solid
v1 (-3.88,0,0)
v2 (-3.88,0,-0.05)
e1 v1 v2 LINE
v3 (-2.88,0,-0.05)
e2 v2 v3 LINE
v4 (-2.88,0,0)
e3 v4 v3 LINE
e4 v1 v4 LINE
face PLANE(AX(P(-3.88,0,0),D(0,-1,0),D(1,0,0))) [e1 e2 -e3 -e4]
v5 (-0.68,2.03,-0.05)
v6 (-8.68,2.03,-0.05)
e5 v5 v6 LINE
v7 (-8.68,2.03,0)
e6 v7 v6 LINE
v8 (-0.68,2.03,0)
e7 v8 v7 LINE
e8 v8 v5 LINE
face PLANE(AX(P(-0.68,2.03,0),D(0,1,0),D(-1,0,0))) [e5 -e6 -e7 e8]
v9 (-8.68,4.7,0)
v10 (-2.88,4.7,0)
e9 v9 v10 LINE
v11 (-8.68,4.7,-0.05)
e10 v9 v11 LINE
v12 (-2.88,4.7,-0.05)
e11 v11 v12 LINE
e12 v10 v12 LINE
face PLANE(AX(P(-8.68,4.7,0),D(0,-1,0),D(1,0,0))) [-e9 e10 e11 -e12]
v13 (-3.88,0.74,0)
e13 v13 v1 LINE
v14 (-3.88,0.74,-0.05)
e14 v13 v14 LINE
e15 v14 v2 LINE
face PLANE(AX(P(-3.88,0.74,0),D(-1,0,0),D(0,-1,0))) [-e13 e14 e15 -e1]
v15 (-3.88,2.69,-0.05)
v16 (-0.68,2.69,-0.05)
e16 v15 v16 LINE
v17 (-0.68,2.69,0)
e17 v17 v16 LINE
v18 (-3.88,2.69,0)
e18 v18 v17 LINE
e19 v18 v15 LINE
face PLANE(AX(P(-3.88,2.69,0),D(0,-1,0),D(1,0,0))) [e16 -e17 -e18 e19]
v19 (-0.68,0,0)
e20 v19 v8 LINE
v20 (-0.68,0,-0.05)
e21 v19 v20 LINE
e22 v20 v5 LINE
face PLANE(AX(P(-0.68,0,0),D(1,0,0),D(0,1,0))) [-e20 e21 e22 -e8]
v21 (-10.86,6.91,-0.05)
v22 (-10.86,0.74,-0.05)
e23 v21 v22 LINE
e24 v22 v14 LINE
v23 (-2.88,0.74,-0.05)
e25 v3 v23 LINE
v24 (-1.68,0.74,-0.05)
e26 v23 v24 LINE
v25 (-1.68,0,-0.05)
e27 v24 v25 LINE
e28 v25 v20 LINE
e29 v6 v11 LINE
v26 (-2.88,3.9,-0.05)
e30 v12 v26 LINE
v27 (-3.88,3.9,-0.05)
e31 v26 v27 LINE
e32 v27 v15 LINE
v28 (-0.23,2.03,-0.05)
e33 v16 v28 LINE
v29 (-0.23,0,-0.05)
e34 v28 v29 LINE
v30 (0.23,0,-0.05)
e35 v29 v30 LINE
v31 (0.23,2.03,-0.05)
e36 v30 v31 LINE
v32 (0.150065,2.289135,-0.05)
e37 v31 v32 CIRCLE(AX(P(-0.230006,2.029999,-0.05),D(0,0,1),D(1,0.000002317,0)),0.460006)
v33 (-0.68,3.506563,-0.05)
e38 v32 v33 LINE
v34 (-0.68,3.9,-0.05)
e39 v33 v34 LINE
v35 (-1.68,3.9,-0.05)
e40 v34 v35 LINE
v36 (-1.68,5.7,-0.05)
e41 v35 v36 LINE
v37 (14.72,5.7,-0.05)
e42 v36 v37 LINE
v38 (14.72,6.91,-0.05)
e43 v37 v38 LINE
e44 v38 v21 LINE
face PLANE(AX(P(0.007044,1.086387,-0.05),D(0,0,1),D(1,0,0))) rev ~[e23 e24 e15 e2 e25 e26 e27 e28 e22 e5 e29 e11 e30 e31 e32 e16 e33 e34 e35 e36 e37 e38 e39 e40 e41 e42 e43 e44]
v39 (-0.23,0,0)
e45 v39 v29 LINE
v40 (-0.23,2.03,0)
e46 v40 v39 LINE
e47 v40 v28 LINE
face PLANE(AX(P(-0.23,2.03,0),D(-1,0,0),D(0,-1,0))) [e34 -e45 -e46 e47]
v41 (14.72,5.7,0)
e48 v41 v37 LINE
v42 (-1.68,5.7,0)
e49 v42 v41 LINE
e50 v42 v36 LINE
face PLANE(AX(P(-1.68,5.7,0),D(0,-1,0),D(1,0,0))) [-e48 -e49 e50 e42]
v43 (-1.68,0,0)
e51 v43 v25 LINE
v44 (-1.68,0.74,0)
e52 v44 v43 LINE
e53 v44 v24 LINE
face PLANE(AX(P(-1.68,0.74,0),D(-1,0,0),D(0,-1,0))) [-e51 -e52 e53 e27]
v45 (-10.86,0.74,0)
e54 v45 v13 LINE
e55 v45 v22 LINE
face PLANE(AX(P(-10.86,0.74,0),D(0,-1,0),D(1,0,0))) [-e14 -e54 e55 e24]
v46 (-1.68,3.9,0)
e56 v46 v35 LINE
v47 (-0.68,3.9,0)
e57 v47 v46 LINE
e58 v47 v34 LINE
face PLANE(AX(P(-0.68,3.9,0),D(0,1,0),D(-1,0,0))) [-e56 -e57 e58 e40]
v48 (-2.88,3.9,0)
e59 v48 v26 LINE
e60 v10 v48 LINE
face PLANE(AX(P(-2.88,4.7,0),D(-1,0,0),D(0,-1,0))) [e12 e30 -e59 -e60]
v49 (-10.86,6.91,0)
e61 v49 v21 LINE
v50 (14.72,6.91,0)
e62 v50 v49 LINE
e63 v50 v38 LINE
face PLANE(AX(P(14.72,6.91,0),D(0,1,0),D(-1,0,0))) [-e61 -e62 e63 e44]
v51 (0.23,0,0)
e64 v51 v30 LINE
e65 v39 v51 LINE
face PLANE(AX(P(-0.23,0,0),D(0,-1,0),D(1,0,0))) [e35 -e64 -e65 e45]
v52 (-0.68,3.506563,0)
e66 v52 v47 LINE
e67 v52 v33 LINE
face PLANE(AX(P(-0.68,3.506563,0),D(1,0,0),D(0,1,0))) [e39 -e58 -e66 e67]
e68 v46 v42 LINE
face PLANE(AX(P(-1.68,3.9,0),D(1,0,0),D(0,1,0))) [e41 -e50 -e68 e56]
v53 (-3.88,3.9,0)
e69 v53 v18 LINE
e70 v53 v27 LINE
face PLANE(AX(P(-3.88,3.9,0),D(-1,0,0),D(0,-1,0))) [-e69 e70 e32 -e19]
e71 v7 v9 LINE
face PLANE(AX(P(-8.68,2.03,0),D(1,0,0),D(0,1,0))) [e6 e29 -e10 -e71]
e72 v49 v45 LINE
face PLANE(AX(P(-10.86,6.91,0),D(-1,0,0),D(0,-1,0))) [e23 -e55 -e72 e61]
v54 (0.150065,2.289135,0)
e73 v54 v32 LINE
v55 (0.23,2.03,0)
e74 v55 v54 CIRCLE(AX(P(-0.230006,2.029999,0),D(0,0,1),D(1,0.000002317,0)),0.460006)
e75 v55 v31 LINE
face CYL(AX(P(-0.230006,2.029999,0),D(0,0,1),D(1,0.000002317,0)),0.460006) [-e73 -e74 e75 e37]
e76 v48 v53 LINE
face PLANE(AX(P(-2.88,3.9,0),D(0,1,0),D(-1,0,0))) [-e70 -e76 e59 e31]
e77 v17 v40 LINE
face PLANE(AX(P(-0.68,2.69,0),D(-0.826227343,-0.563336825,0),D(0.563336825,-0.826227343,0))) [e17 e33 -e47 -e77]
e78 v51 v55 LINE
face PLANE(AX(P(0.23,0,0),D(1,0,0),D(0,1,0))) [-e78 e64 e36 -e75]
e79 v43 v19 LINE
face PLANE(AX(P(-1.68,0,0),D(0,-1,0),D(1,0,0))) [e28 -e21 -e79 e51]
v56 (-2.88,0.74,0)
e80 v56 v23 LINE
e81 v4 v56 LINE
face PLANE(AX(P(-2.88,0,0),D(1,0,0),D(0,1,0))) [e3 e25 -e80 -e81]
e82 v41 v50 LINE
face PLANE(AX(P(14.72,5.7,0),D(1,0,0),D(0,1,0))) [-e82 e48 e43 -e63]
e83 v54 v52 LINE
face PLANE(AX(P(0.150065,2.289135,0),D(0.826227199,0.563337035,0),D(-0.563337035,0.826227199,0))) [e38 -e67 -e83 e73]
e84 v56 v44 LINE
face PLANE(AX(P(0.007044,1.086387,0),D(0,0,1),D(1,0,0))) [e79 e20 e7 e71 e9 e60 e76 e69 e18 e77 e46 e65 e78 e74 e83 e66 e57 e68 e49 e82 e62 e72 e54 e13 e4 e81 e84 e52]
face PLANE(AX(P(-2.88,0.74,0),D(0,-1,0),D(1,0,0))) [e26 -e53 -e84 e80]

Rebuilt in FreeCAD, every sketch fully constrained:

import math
import FreeCAD as App
import Part
import Sketcher

doc = App.newDocument("Part")
params = doc.addObject("Spreadsheet::Sheet", "Params")
for row, (alias, value) in enumerate([
    ("sketch1_width", "1 mm"),
    ("sketch1_width2", "8 mm"),
    ("sketch1_width3", "16.4 mm"),
    ("sketch1_width4", "1.2 mm"),
    ("sketch1_height", "1.8 mm"),
    ("pad1_length", "0.05 mm"),
], start=1):
    params.set(f"A{row}", alias)
    params.set(f"B{row}", "=" + value)
    params.setAlias(f"B{row}", alias)

body = doc.addObject("PartDesign::Body", "Body")

sketch1 = body.newObject("Sketcher::SketchObject", "Sketch")
sketch1.AttachmentSupport = (doc.getObject("XY_Plane"), [""])
sketch1.MapMode = "FlatFace"
sketch1.addGeometry([
    Part.LineSegment(App.Vector(-0.23, 2.03, 0), App.Vector(-0.23, 0, 0)),
    Part.LineSegment(App.Vector(-0.23, 0, 0), App.Vector(0.23, 0, 0)),
    Part.LineSegment(App.Vector(0.23, 0, 0), App.Vector(0.23, 2.03, 0)),
    Part.ArcOfCircle(Part.Circle(App.Vector(-0.23, 2.03, 0), App.Vector(0, 0, 1), 0.46), math.radians(0), math.radians(34)),
    Part.LineSegment(App.Vector(0.15, 2.29, 0), App.Vector(-0.68, 3.51, 0)),
    Part.LineSegment(App.Vector(-0.68, 3.51, 0), App.Vector(-0.68, 3.9, 0)),
    Part.LineSegment(App.Vector(-0.68, 3.9, 0), App.Vector(-1.68, 3.9, 0)),
    Part.LineSegment(App.Vector(-1.68, 3.9, 0), App.Vector(-1.68, 5.7, 0)),
    Part.LineSegment(App.Vector(-1.68, 5.7, 0), App.Vector(14.72, 5.7, 0)),
    Part.LineSegment(App.Vector(14.72, 5.7, 0), App.Vector(14.72, 6.91, 0)),
    Part.LineSegment(App.Vector(14.72, 6.91, 0), App.Vector(-10.86, 6.91, 0)),
    Part.LineSegment(App.Vector(-10.86, 6.91, 0), App.Vector(-10.86, 0.74, 0)),
    Part.LineSegment(App.Vector(-10.86, 0.74, 0), App.Vector(-3.88, 0.74, 0)),
    Part.LineSegment(App.Vector(-3.88, 0.74, 0), App.Vector(-3.88, 0, 0)),
    Part.LineSegment(App.Vector(-3.88, 0, 0), App.Vector(-2.88, 0, 0)),
    Part.LineSegment(App.Vector(-2.88, 0, 0), App.Vector(-2.88, 0.74, 0)),
    Part.LineSegment(App.Vector(-2.88, 0.74, 0), App.Vector(-1.68, 0.74, 0)),
    Part.LineSegment(App.Vector(-1.68, 0.74, 0), App.Vector(-1.68, 0, 0)),
    Part.LineSegment(App.Vector(-1.68, 0, 0), App.Vector(-0.68, 0, 0)),
    Part.LineSegment(App.Vector(-0.68, 0, 0), App.Vector(-0.68, 2.03, 0)),
    Part.LineSegment(App.Vector(-0.68, 2.03, 0), App.Vector(-8.68, 2.03, 0)),
    Part.LineSegment(App.Vector(-8.68, 2.03, 0), App.Vector(-8.68, 4.7, 0)),
    Part.LineSegment(App.Vector(-8.68, 4.7, 0), App.Vector(-2.88, 4.7, 0)),
    Part.LineSegment(App.Vector(-2.88, 4.7, 0), App.Vector(-2.88, 3.9, 0)),
    Part.LineSegment(App.Vector(-2.88, 3.9, 0), App.Vector(-3.88, 3.9, 0)),
    Part.LineSegment(App.Vector(-3.88, 3.9, 0), App.Vector(-3.88, 2.69, 0)),
    Part.LineSegment(App.Vector(-3.88, 2.69, 0), App.Vector(-0.68, 2.69, 0)),
    Part.LineSegment(App.Vector(-0.68, 2.69, 0), App.Vector(-0.23, 2.03, 0)),
], False)
sketch1.addConstraint([
    Sketcher.Constraint("Coincident", 0, 2, 1, 1),
    Sketcher.Constraint("Coincident", 1, 2, 2, 1),
    Sketcher.Constraint("Coincident", 2, 2, 3, 1),
    Sketcher.Constraint("Coincident", 3, 2, 4, 1),
    Sketcher.Constraint("Coincident", 4, 2, 5, 1),
    Sketcher.Constraint("Coincident", 5, 2, 6, 1),
    Sketcher.Constraint("Coincident", 6, 2, 7, 1),
    Sketcher.Constraint("Coincident", 7, 2, 8, 1),
    Sketcher.Constraint("Coincident", 8, 2, 9, 1),
    Sketcher.Constraint("Coincident", 9, 2, 10, 1),
    Sketcher.Constraint("Coincident", 10, 2, 11, 1),
    Sketcher.Constraint("Coincident", 11, 2, 12, 1),
    Sketcher.Constraint("Coincident", 12, 2, 13, 1),
    Sketcher.Constraint("Coincident", 13, 2, 14, 1),
    Sketcher.Constraint("Coincident", 14, 2, 15, 1),
    Sketcher.Constraint("Coincident", 15, 2, 16, 1),
    Sketcher.Constraint("Coincident", 16, 2, 17, 1),
    Sketcher.Constraint("Coincident", 17, 2, 18, 1),
    Sketcher.Constraint("Coincident", 18, 2, 19, 1),
    Sketcher.Constraint("Coincident", 19, 2, 20, 1),
    Sketcher.Constraint("Coincident", 20, 2, 21, 1),
    Sketcher.Constraint("Coincident", 21, 2, 22, 1),
    Sketcher.Constraint("Coincident", 22, 2, 23, 1),
    Sketcher.Constraint("Coincident", 23, 2, 24, 1),
    Sketcher.Constraint("Coincident", 24, 2, 25, 1),
    Sketcher.Constraint("Coincident", 25, 2, 26, 1),
    Sketcher.Constraint("Coincident", 26, 2, 27, 1),
    Sketcher.Constraint("Coincident", 27, 2, 0, 1),
    Sketcher.Constraint("Vertical", 0),
    Sketcher.Constraint("Horizontal", 1),
    Sketcher.Constraint("Vertical", 2),
    Sketcher.Constraint("Vertical", 5),
    Sketcher.Constraint("Horizontal", 6),
    Sketcher.Constraint("Vertical", 7),
    Sketcher.Constraint("Horizontal", 8),
    Sketcher.Constraint("Vertical", 9),
    Sketcher.Constraint("Horizontal", 10),
    Sketcher.Constraint("Vertical", 11),
    Sketcher.Constraint("Horizontal", 12),
    Sketcher.Constraint("Vertical", 13),
    Sketcher.Constraint("Horizontal", 14),
    Sketcher.Constraint("Vertical", 15),
    Sketcher.Constraint("Horizontal", 16),
    Sketcher.Constraint("Vertical", 17),
    Sketcher.Constraint("Horizontal", 18),
    Sketcher.Constraint("Vertical", 19),
    Sketcher.Constraint("Horizontal", 20),
    Sketcher.Constraint("Vertical", 21),
    Sketcher.Constraint("Horizontal", 22),
    Sketcher.Constraint("Vertical", 23),
    Sketcher.Constraint("Horizontal", 24),
    Sketcher.Constraint("Vertical", 25),
    Sketcher.Constraint("Horizontal", 26),
    Sketcher.Constraint("Coincident", 27, 2, 3, 3),
    Sketcher.Constraint("Symmetric", 0, 2, 1, 2, -1, 1),
    Sketcher.Constraint("PointOnObject", 13, 2, -1),
    Sketcher.Constraint("PointOnObject", 17, 2, -1),
    Sketcher.Constraint("Parallel", 4, 27),
    Sketcher.Constraint("Horizontal", 3, 3, 2, 2),
    Sketcher.Constraint("Horizontal", 12, 2, 15, 2),
    Sketcher.Constraint("Horizontal", 2, 2, 19, 2),
    Sketcher.Constraint("Horizontal", 6, 2, 23, 2),
    Sketcher.Constraint("Vertical", 7, 2, 16, 2),
    Sketcher.Constraint("Vertical", 5, 2, 18, 2),
    Sketcher.Constraint("Vertical", 15, 2, 22, 2),
    Sketcher.Constraint("Vertical", 13, 2, 24, 2),
    Sketcher.Constraint("Vertical", 19, 2, 26, 2),
    Sketcher.Constraint("Equal", 6, 14),
    Sketcher.Constraint("Equal", 9, 25),
    Sketcher.Constraint("DistanceX", 6, 2, 6, 1, 1.0),
    Sketcher.Constraint("DistanceX", 20, 2, 20, 1, 8.0),
    Sketcher.Constraint("DistanceX", 8, 1, 8, 2, 16.4),
    Sketcher.Constraint("DistanceX", 16, 1, 16, 2, 1.2),
    Sketcher.Constraint("DistanceY", 7, 1, 7, 2, 1.8),
    Sketcher.Constraint("DistanceY", 23, 2, 23, 1, 0.8),
    Sketcher.Constraint("DistanceX", 1, 1, 1, 2, 0.46),
    Sketcher.Constraint("DistanceX", 10, 2, 10, 1, 25.58),
    Sketcher.Constraint("DistanceY", 0, 2, 0, 1, 2.03),
    Sketcher.Constraint("DistanceY", 9, 1, 9, 2, 1.21),
    Sketcher.Constraint("DistanceY", 11, 2, 11, 1, 6.17),
    Sketcher.Constraint("DistanceY", 13, 2, 13, 1, 0.74),
    Sketcher.Constraint("DistanceX", 4, 2, -1, 1, 0.68),
    Sketcher.Constraint("Distance", 4, 1.473478),
])
sketch1.setExpression("Constraints[69]", "Params.sketch1_width")
sketch1.setExpression("Constraints[70]", "Params.sketch1_width2")
sketch1.setExpression("Constraints[71]", "Params.sketch1_width3")
sketch1.setExpression("Constraints[72]", "Params.sketch1_width4")
sketch1.setExpression("Constraints[73]", "Params.sketch1_height")
pad1 = body.newObject("PartDesign::Pad", "Pad")
pad1.Profile = sketch1
pad1.setExpression("Length", "Params.pad1_length")
pad1.Reversed = True

doc.recompute()
